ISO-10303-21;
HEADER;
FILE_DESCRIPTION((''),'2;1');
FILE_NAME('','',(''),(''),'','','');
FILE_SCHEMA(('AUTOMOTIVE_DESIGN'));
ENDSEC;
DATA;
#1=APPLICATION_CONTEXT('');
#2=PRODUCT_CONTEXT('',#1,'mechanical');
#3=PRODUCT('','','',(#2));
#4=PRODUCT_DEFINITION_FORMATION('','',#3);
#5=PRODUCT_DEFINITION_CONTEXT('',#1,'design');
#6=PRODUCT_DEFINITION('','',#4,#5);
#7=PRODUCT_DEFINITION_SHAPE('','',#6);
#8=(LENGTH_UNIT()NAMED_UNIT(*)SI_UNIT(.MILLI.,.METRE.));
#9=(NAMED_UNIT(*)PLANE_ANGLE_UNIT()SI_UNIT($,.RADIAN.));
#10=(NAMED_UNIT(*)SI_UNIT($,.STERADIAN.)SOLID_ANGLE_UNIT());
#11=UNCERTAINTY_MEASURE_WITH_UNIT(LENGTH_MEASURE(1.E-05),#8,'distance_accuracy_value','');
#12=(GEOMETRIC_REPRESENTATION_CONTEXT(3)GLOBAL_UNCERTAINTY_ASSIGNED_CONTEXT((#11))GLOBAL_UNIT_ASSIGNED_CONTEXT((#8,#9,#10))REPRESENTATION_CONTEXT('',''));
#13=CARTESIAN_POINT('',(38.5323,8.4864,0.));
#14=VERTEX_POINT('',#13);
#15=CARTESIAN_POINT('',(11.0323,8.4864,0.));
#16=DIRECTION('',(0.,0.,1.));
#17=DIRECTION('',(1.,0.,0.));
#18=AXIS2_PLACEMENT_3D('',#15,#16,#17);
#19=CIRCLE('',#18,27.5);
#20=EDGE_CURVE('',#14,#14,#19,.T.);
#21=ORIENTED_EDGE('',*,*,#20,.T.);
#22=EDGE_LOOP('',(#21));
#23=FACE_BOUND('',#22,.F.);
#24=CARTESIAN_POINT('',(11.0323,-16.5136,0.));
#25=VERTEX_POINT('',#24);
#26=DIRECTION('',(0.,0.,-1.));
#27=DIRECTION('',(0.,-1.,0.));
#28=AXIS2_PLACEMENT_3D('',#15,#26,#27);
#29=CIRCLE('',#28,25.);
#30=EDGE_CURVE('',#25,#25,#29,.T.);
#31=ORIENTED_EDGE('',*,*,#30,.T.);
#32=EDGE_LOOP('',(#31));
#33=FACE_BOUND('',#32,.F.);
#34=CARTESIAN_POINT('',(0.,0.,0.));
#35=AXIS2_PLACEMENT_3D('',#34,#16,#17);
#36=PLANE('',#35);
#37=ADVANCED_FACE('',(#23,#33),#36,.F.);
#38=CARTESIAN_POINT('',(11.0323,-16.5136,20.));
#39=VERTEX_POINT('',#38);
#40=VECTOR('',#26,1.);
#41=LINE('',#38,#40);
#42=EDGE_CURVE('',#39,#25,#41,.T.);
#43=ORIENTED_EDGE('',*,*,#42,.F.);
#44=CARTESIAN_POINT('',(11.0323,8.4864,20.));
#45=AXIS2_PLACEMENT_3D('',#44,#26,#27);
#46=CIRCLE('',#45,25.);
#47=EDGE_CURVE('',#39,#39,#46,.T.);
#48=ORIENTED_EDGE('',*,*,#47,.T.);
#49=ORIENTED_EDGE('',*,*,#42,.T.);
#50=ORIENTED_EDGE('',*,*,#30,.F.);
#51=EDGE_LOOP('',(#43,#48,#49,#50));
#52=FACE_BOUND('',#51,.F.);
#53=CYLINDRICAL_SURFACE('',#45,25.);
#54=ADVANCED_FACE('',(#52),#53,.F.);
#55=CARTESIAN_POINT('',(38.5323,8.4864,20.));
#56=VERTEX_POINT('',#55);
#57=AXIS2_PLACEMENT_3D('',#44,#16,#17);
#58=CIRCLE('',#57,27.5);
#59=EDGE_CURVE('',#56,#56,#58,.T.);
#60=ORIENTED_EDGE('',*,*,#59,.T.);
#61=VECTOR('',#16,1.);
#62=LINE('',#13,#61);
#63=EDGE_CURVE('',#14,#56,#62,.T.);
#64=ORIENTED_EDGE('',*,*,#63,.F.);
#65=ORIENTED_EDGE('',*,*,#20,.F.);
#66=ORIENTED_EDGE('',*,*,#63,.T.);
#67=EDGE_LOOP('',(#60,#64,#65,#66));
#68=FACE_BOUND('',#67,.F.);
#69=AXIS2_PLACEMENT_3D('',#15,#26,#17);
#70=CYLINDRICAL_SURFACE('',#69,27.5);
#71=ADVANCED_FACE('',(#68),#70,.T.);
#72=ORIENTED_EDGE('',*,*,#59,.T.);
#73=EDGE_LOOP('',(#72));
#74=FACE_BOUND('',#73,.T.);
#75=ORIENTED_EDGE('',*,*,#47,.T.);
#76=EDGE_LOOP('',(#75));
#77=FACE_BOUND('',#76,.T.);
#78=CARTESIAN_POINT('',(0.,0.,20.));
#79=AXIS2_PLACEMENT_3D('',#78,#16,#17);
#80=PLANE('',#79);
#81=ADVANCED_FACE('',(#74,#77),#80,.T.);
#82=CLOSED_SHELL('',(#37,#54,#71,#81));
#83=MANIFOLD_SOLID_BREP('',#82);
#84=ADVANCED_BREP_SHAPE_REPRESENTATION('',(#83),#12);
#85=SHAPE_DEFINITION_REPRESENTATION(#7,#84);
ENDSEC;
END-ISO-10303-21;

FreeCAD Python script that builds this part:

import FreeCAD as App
import Part
import Sketcher

V = App.Vector
Q = App.Units.Quantity

doc = App.newDocument("Part")
body = doc.addObject("PartDesign::Body", "Body")

# Sketch on XY plane
sketch1 = doc.addObject("Sketcher::SketchObject", "Sketch")
body.addObject(sketch1)
sketch1.AttachmentSupport = (doc.XY_Plane, [""])
sketch1.MapMode = "FlatFace"
sketch1.addGeometry(Part.Circle(V(11.0323, 8.4864, 0), V(0, 0, 1), 27.5), False)
sketch1.addConstraint(Sketcher.Constraint("Diameter", 0, Q("55 mm")))
sketch1.addConstraint(Sketcher.Constraint("DistanceX", -1, 1, 0, 3, Q("11.0323 mm")))
sketch1.addConstraint(Sketcher.Constraint("DistanceY", -1, 1, 0, 3, Q("8.4864 mm")))
pad1 = doc.addObject("PartDesign::Pad", "Pad")
body.addObject(pad1)
pad1.Profile = sketch1
pad1.Length = 20

# Sketch on XY plane
sketch2 = doc.addObject("Sketcher::SketchObject", "Sketch001")
body.addObject(sketch2)
sketch2.AttachmentSupport = (doc.XY_Plane, [""])
sketch2.MapMode = "FlatFace"
sketch2.AttachmentOffset = App.Placement(V(0, 0, 20), App.Rotation())
sketch2.addGeometry(Part.Circle(V(11.0323, 8.4864, 0), V(0, 0, 1), 25), False)
sketch2.addConstraint(Sketcher.Constraint("Diameter", 0, Q("50 mm")))
sketch2.addConstraint(Sketcher.Constraint("DistanceX", -1, 1, 0, 3, Q("11.0323 mm")))
sketch2.addConstraint(Sketcher.Constraint("DistanceY", -1, 1, 0, 3, Q("8.4864 mm")))
doc.recompute()
hole = doc.addObject("PartDesign::Hole", "Hole")
body.addObject(hole)
hole.Profile = sketch2
hole.ThreadType = "None"
hole.Diameter = 50
hole.DepthType = "ThroughAll"

doc.recompute()
